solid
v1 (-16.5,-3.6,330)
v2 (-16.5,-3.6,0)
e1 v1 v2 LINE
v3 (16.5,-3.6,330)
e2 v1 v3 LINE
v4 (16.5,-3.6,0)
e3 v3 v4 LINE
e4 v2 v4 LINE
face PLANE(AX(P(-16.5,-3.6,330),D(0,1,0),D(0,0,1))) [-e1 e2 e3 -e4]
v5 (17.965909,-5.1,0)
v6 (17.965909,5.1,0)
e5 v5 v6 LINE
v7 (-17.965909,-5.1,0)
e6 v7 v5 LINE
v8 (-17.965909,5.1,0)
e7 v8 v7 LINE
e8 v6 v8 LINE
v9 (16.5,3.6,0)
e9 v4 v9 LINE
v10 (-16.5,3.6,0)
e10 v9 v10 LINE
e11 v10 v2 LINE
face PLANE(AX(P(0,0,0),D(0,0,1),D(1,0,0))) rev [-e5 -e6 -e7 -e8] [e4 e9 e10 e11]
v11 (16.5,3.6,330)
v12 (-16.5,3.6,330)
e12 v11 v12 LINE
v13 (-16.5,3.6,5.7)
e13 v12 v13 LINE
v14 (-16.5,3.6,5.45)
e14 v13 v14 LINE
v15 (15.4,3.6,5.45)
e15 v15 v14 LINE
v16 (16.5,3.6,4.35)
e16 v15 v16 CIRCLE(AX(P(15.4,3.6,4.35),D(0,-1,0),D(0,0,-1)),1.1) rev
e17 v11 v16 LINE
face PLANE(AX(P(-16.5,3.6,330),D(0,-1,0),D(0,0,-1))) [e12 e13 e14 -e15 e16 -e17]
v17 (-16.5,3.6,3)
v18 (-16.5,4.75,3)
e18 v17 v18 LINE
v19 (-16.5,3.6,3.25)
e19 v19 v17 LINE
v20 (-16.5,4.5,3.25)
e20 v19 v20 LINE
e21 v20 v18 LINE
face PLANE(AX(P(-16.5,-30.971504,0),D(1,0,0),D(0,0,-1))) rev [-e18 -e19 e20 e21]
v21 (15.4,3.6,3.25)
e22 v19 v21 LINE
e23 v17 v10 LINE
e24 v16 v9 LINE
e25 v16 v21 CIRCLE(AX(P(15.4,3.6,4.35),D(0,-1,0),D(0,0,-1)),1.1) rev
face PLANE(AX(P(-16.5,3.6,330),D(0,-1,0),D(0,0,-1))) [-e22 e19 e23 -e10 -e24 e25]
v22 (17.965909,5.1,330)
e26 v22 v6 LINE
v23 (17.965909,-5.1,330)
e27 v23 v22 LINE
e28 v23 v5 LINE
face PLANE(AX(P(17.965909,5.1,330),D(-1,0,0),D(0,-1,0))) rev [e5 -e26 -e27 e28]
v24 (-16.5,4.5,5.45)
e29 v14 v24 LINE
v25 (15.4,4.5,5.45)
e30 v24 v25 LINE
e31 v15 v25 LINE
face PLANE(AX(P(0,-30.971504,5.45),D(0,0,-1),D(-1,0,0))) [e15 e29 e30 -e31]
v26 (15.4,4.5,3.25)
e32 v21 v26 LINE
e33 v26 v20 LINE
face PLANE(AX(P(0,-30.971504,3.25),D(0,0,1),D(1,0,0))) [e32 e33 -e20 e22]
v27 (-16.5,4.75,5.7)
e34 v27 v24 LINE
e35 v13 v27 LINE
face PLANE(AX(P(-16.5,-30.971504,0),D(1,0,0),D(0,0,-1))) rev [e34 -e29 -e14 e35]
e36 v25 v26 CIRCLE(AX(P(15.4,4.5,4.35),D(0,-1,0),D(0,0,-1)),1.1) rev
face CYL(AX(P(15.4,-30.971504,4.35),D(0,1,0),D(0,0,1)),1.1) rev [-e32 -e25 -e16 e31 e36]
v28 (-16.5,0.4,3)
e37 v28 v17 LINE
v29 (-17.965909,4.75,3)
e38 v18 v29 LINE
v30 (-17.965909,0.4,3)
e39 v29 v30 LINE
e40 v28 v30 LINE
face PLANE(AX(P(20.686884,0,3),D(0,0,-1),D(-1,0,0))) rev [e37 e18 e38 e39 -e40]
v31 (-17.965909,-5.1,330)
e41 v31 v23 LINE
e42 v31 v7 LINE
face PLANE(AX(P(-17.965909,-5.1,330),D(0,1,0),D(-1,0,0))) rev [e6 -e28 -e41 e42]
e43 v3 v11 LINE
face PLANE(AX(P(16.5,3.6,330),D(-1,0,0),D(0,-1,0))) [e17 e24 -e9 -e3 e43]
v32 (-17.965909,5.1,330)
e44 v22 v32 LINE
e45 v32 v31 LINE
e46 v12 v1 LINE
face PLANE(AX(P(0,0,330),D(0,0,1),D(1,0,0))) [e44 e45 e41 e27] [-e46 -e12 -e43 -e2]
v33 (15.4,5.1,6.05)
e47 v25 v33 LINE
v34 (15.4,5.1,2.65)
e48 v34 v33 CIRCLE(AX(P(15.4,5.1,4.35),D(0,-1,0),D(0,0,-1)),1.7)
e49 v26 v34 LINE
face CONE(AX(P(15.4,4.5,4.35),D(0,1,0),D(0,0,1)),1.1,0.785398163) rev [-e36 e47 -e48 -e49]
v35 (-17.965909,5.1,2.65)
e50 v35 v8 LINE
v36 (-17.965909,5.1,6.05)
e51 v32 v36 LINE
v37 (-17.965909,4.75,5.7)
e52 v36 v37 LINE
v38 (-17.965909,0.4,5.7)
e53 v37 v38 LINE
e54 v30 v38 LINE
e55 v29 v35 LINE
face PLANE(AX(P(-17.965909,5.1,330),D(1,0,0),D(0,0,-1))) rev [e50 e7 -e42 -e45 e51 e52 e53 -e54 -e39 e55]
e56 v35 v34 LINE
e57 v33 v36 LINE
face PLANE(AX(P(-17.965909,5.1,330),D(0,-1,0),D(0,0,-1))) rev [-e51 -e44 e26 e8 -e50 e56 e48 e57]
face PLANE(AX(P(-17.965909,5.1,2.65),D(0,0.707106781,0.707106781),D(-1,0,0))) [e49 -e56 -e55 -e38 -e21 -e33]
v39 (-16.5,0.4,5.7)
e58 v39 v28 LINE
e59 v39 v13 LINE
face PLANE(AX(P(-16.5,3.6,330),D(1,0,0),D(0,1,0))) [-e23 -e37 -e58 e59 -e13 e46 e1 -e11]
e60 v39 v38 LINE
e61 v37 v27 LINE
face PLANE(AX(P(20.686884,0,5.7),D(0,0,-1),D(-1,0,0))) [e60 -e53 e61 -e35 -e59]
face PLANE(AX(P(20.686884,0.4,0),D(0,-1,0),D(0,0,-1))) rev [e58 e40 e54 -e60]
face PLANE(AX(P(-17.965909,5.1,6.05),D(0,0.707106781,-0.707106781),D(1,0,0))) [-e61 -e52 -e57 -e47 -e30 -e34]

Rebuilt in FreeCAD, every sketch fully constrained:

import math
import FreeCAD as App
import Part
import Sketcher
Q = App.Units.Quantity


def edges_at(feature, points):
    """Names of the edges that pass closest to the given points."""
    edges = feature.Shape.Edges
    near = lambda p: min(range(len(edges)), key=lambda i: edges[i].distToShape(Part.Vertex(*p))[0])
    return sorted({f"Edge{near(p) + 1}" for p in points})


def add_polygon(sketch, points):
    """Adds a closed chain of lines whose ends are joined by coincident constraints."""
    first, n = sketch.GeometryCount, len(points)
    for a, b in zip(points, points[1:] + points[:1]):
        sketch.addGeometry(Part.LineSegment(App.Vector(*a, 0), App.Vector(*b, 0)), False)
    for i in range(n):
        sketch.addConstraint(Sketcher.Constraint("Coincident", first + i, 2, first + (i + 1) % n, 1))

doc = App.newDocument("Part")
body = doc.addObject("PartDesign::Body", "Body")

sketch1 = body.newObject("Sketcher::SketchObject", "Sketch")
sketch1.AttachmentSupport = (doc.getObject("XY_Plane"), [""])
sketch1.MapMode = "FlatFace"
add_polygon(sketch1, [(-17.965909, 5.1), (-17.965909, -5.1), (17.965909, -5.1), (17.965909, 5.1)])
add_polygon(sketch1, [(16.5, -3.6), (-16.5, -3.6), (-16.5, 3.6), (16.5, 3.6)])
sketch1.addConstraint(Sketcher.Constraint("Vertical", 0))
sketch1.addConstraint(Sketcher.Constraint("Horizontal", 1))
sketch1.addConstraint(Sketcher.Constraint("Vertical", 2))
sketch1.addConstraint(Sketcher.Constraint("Horizontal", 3))
sketch1.addConstraint(Sketcher.Constraint("Horizontal", 4))
sketch1.addConstraint(Sketcher.Constraint("Vertical", 5))
sketch1.addConstraint(Sketcher.Constraint("Horizontal", 6))
sketch1.addConstraint(Sketcher.Constraint("Vertical", 7))
sketch1.addConstraint(Sketcher.Constraint("Symmetric", 0, 2, 2, 2, -1, 1))
sketch1.addConstraint(Sketcher.Constraint("Symmetric", 4, 2, 6, 2, -1, 1))
sketch1.addConstraint(Sketcher.Constraint("DistanceX", 4, 2, 4, 1, Q("33 mm")))
sketch1.addConstraint(Sketcher.Constraint("DistanceY", 0, 2, 0, 1, Q("10.2 mm")))
sketch1.addConstraint(Sketcher.Constraint("DistanceY", 5, 1, 5, 2, Q("7.2 mm")))
sketch1.addConstraint(Sketcher.Constraint("DistanceX", 1, 1, 1, 2, Q("35.931818 mm")))
pad1 = body.newObject("PartDesign::Pad", "Pad")
pad1.Profile = sketch1
pad1.Length = 330

sketch2 = body.newObject("Sketcher::SketchObject", "Sketch001")
sketch2.AttachmentSupport = (doc.getObject("YZ_Plane"), [""])
sketch2.MapMode = "FlatFace"
sketch2.AttachmentOffset = App.Placement(App.Vector(0, 0, -17.965909), App.Rotation())
add_polygon(sketch2, [(3.6, 3), (0.4, 3), (0.4, 5.7), (3.6, 5.7)])
sketch2.addConstraint(Sketcher.Constraint("Horizontal", 0))
sketch2.addConstraint(Sketcher.Constraint("Vertical", 1))
sketch2.addConstraint(Sketcher.Constraint("Horizontal", 2))
sketch2.addConstraint(Sketcher.Constraint("Vertical", 3))
sketch2.addConstraint(Sketcher.Constraint("DistanceX", 0, 2, 0, 1, Q("3.2 mm")))
sketch2.addConstraint(Sketcher.Constraint("DistanceY", 1, 1, 1, 2, Q("2.7 mm")))
sketch2.addConstraint(Sketcher.Constraint("DistanceY", -1, 1, 0, 2, Q("3 mm")))
sketch2.addConstraint(Sketcher.Constraint("DistanceX", -1, 1, 0, 2, Q("0.4 mm")))
pocket1 = body.newObject("PartDesign::Pocket", "Pocket")
pocket1.Profile = sketch2
pocket1.Length = 34.465909
pocket1.Reversed = True

sketch3 = body.newObject("Sketcher::SketchObject", "Sketch002")
sketch3.AttachmentSupport = (doc.getObject("XZ_Plane"), [""])
sketch3.MapMode = "FlatFace"
sketch3.AttachmentOffset = App.Placement(App.Vector(0, 0, -5.1), App.Rotation())
sketch3.addGeometry(Part.LineSegment(App.Vector(-16.5, 5.45, 0), App.Vector(15.4, 5.45, 0)), False)
sketch3.addGeometry(Part.ArcOfCircle(Part.Circle(App.Vector(15.4, 4.35, 0), App.Vector(0, 0, 1), 1.1), math.radians(-90), math.radians(90)), False)
sketch3.addGeometry(Part.LineSegment(App.Vector(15.4, 3.25, 0), App.Vector(-16.5, 3.25, 0)), False)
sketch3.addGeometry(Part.LineSegment(App.Vector(-16.5, 3.25, 0), App.Vector(-16.5, 3, 0)), False)
sketch3.addGeometry(Part.LineSegment(App.Vector(-16.5, 3, 0), App.Vector(-17.965909, 3, 0)), False)
sketch3.addGeometry(Part.LineSegment(App.Vector(-17.965909, 3, 0), App.Vector(-17.965909, 5.7, 0)), False)
sketch3.addGeometry(Part.LineSegment(App.Vector(-17.965909, 5.7, 0), App.Vector(-16.5, 5.7, 0)), False)
sketch3.addGeometry(Part.LineSegment(App.Vector(-16.5, 5.7, 0), App.Vector(-16.5, 5.45, 0)), False)
sketch3.addConstraint(Sketcher.Constraint("Tangent", 0, 2, 1, 2))
sketch3.addConstraint(Sketcher.Constraint("Tangent", 1, 1, 2, 1))
sketch3.addConstraint(Sketcher.Constraint("Coincident", 2, 2, 3, 1))
sketch3.addConstraint(Sketcher.Constraint("Coincident", 3, 2, 4, 1))
sketch3.addConstraint(Sketcher.Constraint("Coincident", 4, 2, 5, 1))
sketch3.addConstraint(Sketcher.Constraint("Coincident", 5, 2, 6, 1))
sketch3.addConstraint(Sketcher.Constraint("Coincident", 6, 2, 7, 1))
sketch3.addConstraint(Sketcher.Constraint("Coincident", 7, 2, 0, 1))
sketch3.addConstraint(Sketcher.Constraint("Horizontal", 0))
sketch3.addConstraint(Sketcher.Constraint("Horizontal", 2))
sketch3.addConstraint(Sketcher.Constraint("Vertical", 3))
sketch3.addConstraint(Sketcher.Constraint("Horizontal", 4))
sketch3.addConstraint(Sketcher.Constraint("Vertical", 5))
sketch3.addConstraint(Sketcher.Constraint("Horizontal", 6))
sketch3.addConstraint(Sketcher.Constraint("Vertical", 7))
sketch3.addConstraint(Sketcher.Constraint("Vertical", 3, 2, 6, 2))
sketch3.addConstraint(Sketcher.Constraint("Equal", 3, 7))
sketch3.addConstraint(Sketcher.Constraint("Radius", 1, Q("1.1 mm")))
sketch3.addConstraint(Sketcher.Constraint("DistanceX", 0, 1, 0, 2, Q("31.9 mm")))
sketch3.addConstraint(Sketcher.Constraint("DistanceY", 5, 1, 5, 2, Q("2.7 mm")))
sketch3.addConstraint(Sketcher.Constraint("DistanceY", -1, 1, 3, 2, Q("3 mm")))
sketch3.addConstraint(Sketcher.Constraint("DistanceX", -1, 1, 1, 3, Q("15.4 mm")))
sketch3.addConstraint(Sketcher.Constraint("DistanceX", 4, 2, 4, 1, Q("1.465909 mm")))
pocket2 = body.newObject("PartDesign::Pocket", "Pocket001")
pocket2.Profile = sketch3
pocket2.Length = 1.5
pocket2.Reversed = True
doc.recompute()

chamfer = body.newObject("PartDesign::Chamfer", "Chamfer")
chamfer.Base = (pocket2, edges_at(pocket2, [(-0.55, 5.1, 3.25), (16.5, 5.1, 4.35), (-0.55, 5.1, 5.45)]))
chamfer.Size = 0.6

doc.recompute()
